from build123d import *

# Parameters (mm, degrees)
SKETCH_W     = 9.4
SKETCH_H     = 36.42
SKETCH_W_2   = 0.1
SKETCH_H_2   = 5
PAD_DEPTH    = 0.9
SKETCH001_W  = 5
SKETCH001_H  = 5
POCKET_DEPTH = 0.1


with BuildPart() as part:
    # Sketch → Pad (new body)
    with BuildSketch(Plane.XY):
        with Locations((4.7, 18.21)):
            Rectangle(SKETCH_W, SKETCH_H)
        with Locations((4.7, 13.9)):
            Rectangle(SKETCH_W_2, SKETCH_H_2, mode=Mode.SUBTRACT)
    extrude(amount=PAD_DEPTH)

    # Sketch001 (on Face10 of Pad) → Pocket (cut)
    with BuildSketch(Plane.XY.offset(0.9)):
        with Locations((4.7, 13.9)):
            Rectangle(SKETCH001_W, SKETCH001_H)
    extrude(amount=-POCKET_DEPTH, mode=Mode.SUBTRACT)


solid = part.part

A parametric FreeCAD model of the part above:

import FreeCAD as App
import Part
import Sketcher

doc = App.newDocument("Part")
body = doc.addObject("PartDesign::Body", "Body")

# Sketch on XY plane
sketch1 = doc.addObject("Sketcher::SketchObject", "Sketch")
body.addObject(sketch1)
sketch1.AttachmentSupport = (doc.XY_Plane, [""])
sketch1.MapMode = "FlatFace"
sketch1.addGeometry(Part.LineSegment(App.Vector(0, 36.42, 0), App.Vector(0, 0, 0)), False)
sketch1.addGeometry(Part.LineSegment(App.Vector(0, 0, 0), App.Vector(9.4, 0, 0)), False)
sketch1.addGeometry(Part.LineSegment(App.Vector(9.4, 0, 0), App.Vector(9.4, 36.42, 0)), False)
sketch1.addGeometry(Part.LineSegment(App.Vector(9.4, 36.42, 0), App.Vector(0, 36.42, 0)), False)
sketch1.addGeometry(Part.LineSegment(App.Vector(4.75, 11.4, 0), App.Vector(4.65, 11.4, 0)), False)
sketch1.addGeometry(Part.LineSegment(App.Vector(4.65, 11.4, 0), App.Vector(4.65, 16.4, 0)), False)
sketch1.addGeometry(Part.LineSegment(App.Vector(4.65, 16.4, 0), App.Vector(4.75, 16.4, 0)), False)
sketch1.addGeometry(Part.LineSegment(App.Vector(4.75, 16.4, 0), App.Vector(4.75, 11.4, 0)), False)
sketch1.addConstraint(Sketcher.Constraint("Coincident", 0, 2, 1, 1))
sketch1.addConstraint(Sketcher.Constraint("Coincident", 1, 2, 2, 1))
sketch1.addConstraint(Sketcher.Constraint("Coincident", 2, 2, 3, 1))
sketch1.addConstraint(Sketcher.Constraint("Coincident", 3, 2, 0, 1))
sketch1.addConstraint(Sketcher.Constraint("Coincident", 4, 2, 5, 1))
sketch1.addConstraint(Sketcher.Constraint("Coincident", 5, 2, 6, 1))
sketch1.addConstraint(Sketcher.Constraint("Coincident", 6, 2, 7, 1))
sketch1.addConstraint(Sketcher.Constraint("Coincident", 7, 2, 4, 1))
sketch1.addConstraint(Sketcher.Constraint("Vertical", 0))
sketch1.addConstraint(Sketcher.Constraint("Horizontal", 1))
sketch1.addConstraint(Sketcher.Constraint("Vertical", 2))
sketch1.addConstraint(Sketcher.Constraint("Horizontal", 3))
sketch1.addConstraint(Sketcher.Constraint("Horizontal", 4))
sketch1.addConstraint(Sketcher.Constraint("Vertical", 5))
sketch1.addConstraint(Sketcher.Constraint("Horizontal", 6))
sketch1.addConstraint(Sketcher.Constraint("Vertical", 7))
sketch1.addConstraint(Sketcher.Constraint("Coincident", 0, 2, -1, 1))
sketch1.addConstraint(Sketcher.Constraint("DistanceY", 5, 1, 5, 2, 5.0))
sketch1.addConstraint(Sketcher.Constraint("DistanceX", 1, 1, 1, 2, 9.4))
sketch1.addConstraint(Sketcher.Constraint("DistanceX", 4, 2, 4, 1, 0.1))
sketch1.addConstraint(Sketcher.Constraint("DistanceY", 0, 2, 0, 1, 36.42))
sketch1.addConstraint(Sketcher.Constraint("DistanceY", -1, 1, 4, 2, 11.4))
sketch1.addConstraint(Sketcher.Constraint("DistanceX", -1, 1, 4, 2, 4.65))
pad1 = doc.addObject("PartDesign::Pad", "Pad")
body.addObject(pad1)
pad1.Profile = sketch1
pad1.Length = 0.9

# Sketch on XY plane
sketch2 = doc.addObject("Sketcher::SketchObject", "Sketch001")
body.addObject(sketch2)
sketch2.AttachmentSupport = (doc.XY_Plane, [""])
sketch2.MapMode = "FlatFace"
sketch2.AttachmentOffset = App.Placement(App.Vector(0, 0, 0.9), App.Rotation())
sketch2.addGeometry(Part.LineSegment(App.Vector(2.2, 16.4, 0), App.Vector(2.2, 11.4, 0)), False)
sketch2.addGeometry(Part.LineSegment(App.Vector(2.2, 11.4, 0), App.Vector(7.2, 11.4, 0)), False)
sketch2.addGeometry(Part.LineSegment(App.Vector(7.2, 11.4, 0), App.Vector(7.2, 16.4, 0)), False)
sketch2.addGeometry(Part.LineSegment(App.Vector(7.2, 16.4, 0), App.Vector(2.2, 16.4, 0)), False)
sketch2.addConstraint(Sketcher.Constraint("Coincident", 0, 2, 1, 1))
sketch2.addConstraint(Sketcher.Constraint("Coincident", 1, 2, 2, 1))
sketch2.addConstraint(Sketcher.Constraint("Coincident", 2, 2, 3, 1))
sketch2.addConstraint(Sketcher.Constraint("Coincident", 3, 2, 0, 1))
sketch2.addConstraint(Sketcher.Constraint("Vertical", 0))
sketch2.addConstraint(Sketcher.Constraint("Horizontal", 1))
sketch2.addConstraint(Sketcher.Constraint("Vertical", 2))
sketch2.addConstraint(Sketcher.Constraint("Horizontal", 3))
sketch2.addConstraint(Sketcher.Constraint("Equal", 3, 0))
sketch2.addConstraint(Sketcher.Constraint("DistanceX", 1, 1, 1, 2, 5.0))
sketch2.addConstraint(Sketcher.Constraint("DistanceX", -1, 1, 0, 2, 2.2))
sketch2.addConstraint(Sketcher.Constraint("DistanceY", -1, 1, 0, 2, 11.4))
pocket1 = doc.addObject("PartDesign::Pocket", "Pocket")
body.addObject(pocket1)
pocket1.Profile = sketch2
pocket1.Length = 0.1

doc.recompute()
